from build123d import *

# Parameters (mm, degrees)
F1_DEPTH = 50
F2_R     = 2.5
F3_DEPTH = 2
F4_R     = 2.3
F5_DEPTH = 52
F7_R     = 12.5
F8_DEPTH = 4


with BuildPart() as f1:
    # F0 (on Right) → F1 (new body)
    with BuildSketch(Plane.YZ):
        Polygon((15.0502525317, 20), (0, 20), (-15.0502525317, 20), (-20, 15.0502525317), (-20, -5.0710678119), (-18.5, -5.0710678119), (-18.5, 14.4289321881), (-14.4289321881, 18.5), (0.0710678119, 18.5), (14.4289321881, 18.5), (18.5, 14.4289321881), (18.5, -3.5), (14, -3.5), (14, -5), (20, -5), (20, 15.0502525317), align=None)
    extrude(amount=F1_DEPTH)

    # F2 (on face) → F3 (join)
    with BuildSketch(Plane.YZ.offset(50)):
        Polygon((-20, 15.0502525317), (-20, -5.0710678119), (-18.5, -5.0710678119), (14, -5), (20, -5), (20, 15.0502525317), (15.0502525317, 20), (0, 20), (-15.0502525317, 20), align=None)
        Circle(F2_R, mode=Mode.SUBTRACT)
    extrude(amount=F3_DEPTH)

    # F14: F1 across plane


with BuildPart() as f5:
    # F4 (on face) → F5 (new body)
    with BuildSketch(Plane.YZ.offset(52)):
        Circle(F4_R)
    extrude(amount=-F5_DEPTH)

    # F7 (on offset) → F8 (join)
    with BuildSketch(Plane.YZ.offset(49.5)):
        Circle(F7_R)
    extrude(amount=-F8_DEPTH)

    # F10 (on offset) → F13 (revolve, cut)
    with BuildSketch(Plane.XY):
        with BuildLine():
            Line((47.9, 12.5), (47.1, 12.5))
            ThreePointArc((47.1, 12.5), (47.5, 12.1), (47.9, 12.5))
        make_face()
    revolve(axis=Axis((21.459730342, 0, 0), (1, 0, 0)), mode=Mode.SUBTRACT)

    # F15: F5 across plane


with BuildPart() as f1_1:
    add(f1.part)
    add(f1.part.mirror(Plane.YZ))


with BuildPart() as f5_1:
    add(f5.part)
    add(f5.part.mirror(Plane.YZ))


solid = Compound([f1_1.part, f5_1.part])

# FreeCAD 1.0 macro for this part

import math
import FreeCAD as App
import Part
import Sketcher
from FreeCAD import Vector
Q = App.Units.Quantity

doc = App.newDocument("Part")
body = doc.addObject("PartDesign::Body", "Body")

# Sketch on YZ plane
sketch1 = body.newObject("Sketcher::SketchObject", "Sketch")
sketch1.AttachmentSupport = (doc.getObject("YZ_Plane"), [""])
sketch1.MapMode = "FlatFace"
sketch1.addGeometry([
    Part.LineSegment(Vector(15.1, 20, 0), Vector(-15.1, 20, 0)),  # 0
    Part.LineSegment(Vector(-15.1, 20, 0), Vector(-20, 15.1, 0)),  # 1
    Part.LineSegment(Vector(-20, 15.1, 0), Vector(-20, -5.1, 0)),  # 2
    Part.LineSegment(Vector(-20, -5.1, 0), Vector(-18.5, -5.1, 0)),  # 3
    Part.LineSegment(Vector(-18.5, -5.1, 0), Vector(-18.5, 14.4, 0)),  # 4
    Part.LineSegment(Vector(-18.5, 14.4, 0), Vector(-14.4, 18.5, 0)),  # 5
    Part.LineSegment(Vector(-14.4, 18.5, 0), Vector(14.4, 18.5, 0)),  # 6
    Part.LineSegment(Vector(14.4, 18.5, 0), Vector(18.5, 14.4, 0)),  # 7
    Part.LineSegment(Vector(18.5, 14.4, 0), Vector(18.5, -3.5, 0)),  # 8
    Part.LineSegment(Vector(18.5, -3.5, 0), Vector(14, -3.5, 0)),  # 9
    Part.LineSegment(Vector(14, -3.5, 0), Vector(14, -5, 0)),  # 10
    Part.LineSegment(Vector(14, -5, 0), Vector(20, -5, 0)),  # 11
    Part.LineSegment(Vector(20, -5, 0), Vector(20, 15.1, 0)),  # 12
    Part.LineSegment(Vector(20, 15.1, 0), Vector(15.1, 20, 0)),  # 13
], False)
sketch1.addConstraint([
    Sketcher.Constraint("Coincident", 0, 2, 1, 1),
    Sketcher.Constraint("Coincident", 1, 2, 2, 1),
    Sketcher.Constraint("Coincident", 2, 2, 3, 1),
    Sketcher.Constraint("Coincident", 3, 2, 4, 1),
    Sketcher.Constraint("Coincident", 4, 2, 5, 1),
    Sketcher.Constraint("Coincident", 5, 2, 6, 1),
    Sketcher.Constraint("Coincident", 6, 2, 7, 1),
    Sketcher.Constraint("Coincident", 7, 2, 8, 1),
    Sketcher.Constraint("Coincident", 8, 2, 9, 1),
    Sketcher.Constraint("Coincident", 9, 2, 10, 1),
    Sketcher.Constraint("Coincident", 10, 2, 11, 1),
    Sketcher.Constraint("Coincident", 11, 2, 12, 1),
    Sketcher.Constraint("Coincident", 12, 2, 13, 1),
    Sketcher.Constraint("Coincident", 13, 2, 0, 1),
    Sketcher.Constraint("Horizontal", 0),
    Sketcher.Constraint("Vertical", 2),
    Sketcher.Constraint("Horizontal", 3),
    Sketcher.Constraint("Vertical", 4),
    Sketcher.Constraint("Horizontal", 6),
    Sketcher.Constraint("Vertical", 8),
    Sketcher.Constraint("Horizontal", 9),
    Sketcher.Constraint("Vertical", 10),
    Sketcher.Constraint("Horizontal", 11),
    Sketcher.Constraint("Vertical", 12),
    Sketcher.Constraint("Symmetric", 4, 2, 7, 2, -2),
    Sketcher.Constraint("Symmetric", 1, 2, 12, 2, -2),
    Sketcher.Constraint("Parallel", 1, 5),
    Sketcher.Constraint("Perpendicular", 5, 7),
    Sketcher.Constraint("Parallel", 7, 13),
    Sketcher.Constraint("Equal", 3, 10),
    Sketcher.Constraint("Equal", 5, 7),
    Sketcher.Constraint("DistanceX", 11, 1, 11, 2, Q("6 mm")),
    Sketcher.Constraint("Distance", 1, Q("7 mm")),
    Sketcher.Constraint("DistanceX", 3, 1, 3, 2, Q("1.5 mm")),
    Sketcher.Constraint("DistanceY", 4, 1, 4, 2, Q("19.5 mm")),
    Sketcher.Constraint("DistanceY", -1, 1, 0, 2, Q("20 mm")),
    Sketcher.Constraint("DistanceX", 1, 2, -1, 1, Q("20 mm")),
    Sketcher.Constraint("DistanceY", 10, 2, -1, 1, Q("5 mm")),
    Sketcher.Constraint("DistanceY", 8, 2, 6, 2, Q("22 mm")),
    Sketcher.Constraint("DistanceY", 2, 2, 2, 1, Q("20.12132 mm")),
])
pad1 = body.newObject("PartDesign::Pad", "Pad")
pad1.Profile = sketch1
pad1.Length = 50

# Sketch on YZ plane
sketch2 = body.newObject("Sketcher::SketchObject", "Sketch001")
sketch2.AttachmentSupport = (doc.getObject("YZ_Plane"), [""])
sketch2.MapMode = "FlatFace"
sketch2.AttachmentOffset = App.Placement(Vector(0, 0, 50), App.Rotation())
sketch2.addGeometry([
    Part.LineSegment(Vector(-20, 15.1, 0), Vector(-20, -5.1, 0)),  # 0
    Part.LineSegment(Vector(-20, -5.1, 0), Vector(-18.5, -5.1, 0)),  # 1
    Part.LineSegment(Vector(-18.5, -5.1, 0), Vector(14, -5, 0)),  # 2
    Part.LineSegment(Vector(14, -5, 0), Vector(20, -5, 0)),  # 3
    Part.LineSegment(Vector(20, -5, 0), Vector(20, 15.1, 0)),  # 4
    Part.LineSegment(Vector(20, 15.1, 0), Vector(15.1, 20, 0)),  # 5
    Part.LineSegment(Vector(15.1, 20, 0), Vector(-15.1, 20, 0)),  # 6
    Part.LineSegment(Vector(-15.1, 20, 0), Vector(-20, 15.1, 0)),  # 7
    Part.Circle(Vector(0, 0, 0), Vector(0, 0, 1), 2.5),  # 8
], False)
sketch2.addConstraint([
    Sketcher.Constraint("Coincident", 0, 2, 1, 1),
    Sketcher.Constraint("Coincident", 1, 2, 2, 1),
    Sketcher.Constraint("Coincident", 2, 2, 3, 1),
    Sketcher.Constraint("Coincident", 3, 2, 4, 1),
    Sketcher.Constraint("Coincident", 4, 2, 5, 1),
    Sketcher.Constraint("Coincident", 5, 2, 6, 1),
    Sketcher.Constraint("Coincident", 6, 2, 7, 1),
    Sketcher.Constraint("Coincident", 7, 2, 0, 1),
    Sketcher.Constraint("Vertical", 0),
    Sketcher.Constraint("Horizontal", 1),
    Sketcher.Constraint("Horizontal", 3),
    Sketcher.Constraint("Vertical", 4),
    Sketcher.Constraint("Horizontal", 6),
    Sketcher.Constraint("Coincident", 8, 3, -1, 1),
    Sketcher.Constraint("Symmetric", 4, 2, 7, 2, -2),
    Sketcher.Constraint("Perpendicular", 5, 7),
    Sketcher.Constraint("Equal", 5, 7),
    Sketcher.Constraint("Diameter", 8, Q("5 mm")),
    Sketcher.Constraint("DistanceX", 3, 1, 3, 2, Q("6 mm")),
    Sketcher.Constraint("Distance", 5, Q("7 mm")),
    Sketcher.Constraint("DistanceX", 1, 1, 1, 2, Q("1.5 mm")),
    Sketcher.Constraint("DistanceX", 0, 2, -1, 1, Q("20 mm")),
    Sketcher.Constraint("DistanceY", 2, 2, -1, 1, Q("5 mm")),
    Sketcher.Constraint("DistanceY", -1, 1, 5, 2, Q("20 mm")),
    Sketcher.Constraint("DistanceY", 0, 2, 0, 1, Q("20.12132 mm")),
])
pad2 = body.newObject("PartDesign::Pad", "Pad001")
pad2.Profile = sketch2
pad2.Length = 2
body2 = doc.addObject("PartDesign::Body", "Body001")

# Sketch on YZ plane
sketch3 = body2.newObject("Sketcher::SketchObject", "Sketch002")
sketch3.AttachmentSupport = (doc.getObject("YZ_Plane001"), [""])
sketch3.MapMode = "FlatFace"
sketch3.AttachmentOffset = App.Placement(Vector(0, 0, 52), App.Rotation())
sketch3.addGeometry(Part.Circle(Vector(0, 0, 0), Vector(0, 0, 1), 2.3), False)
sketch3.addConstraint([
    Sketcher.Constraint("Coincident", 0, 3, -1, 1),
    Sketcher.Constraint("Diameter", 0, Q("4.6 mm")),
])
pad3 = body2.newObject("PartDesign::Pad", "Pad002")
pad3.Profile = sketch3
pad3.Length = 52
pad3.Reversed = True

# Sketch on YZ plane
sketch4 = body2.newObject("Sketcher::SketchObject", "Sketch003")
sketch4.AttachmentSupport = (doc.getObject("YZ_Plane001"), [""])
sketch4.MapMode = "FlatFace"
sketch4.AttachmentOffset = App.Placement(Vector(0, 0, 49.5), App.Rotation())
sketch4.addGeometry(Part.Circle(Vector(0, 0, 0), Vector(0, 0, 1), 12), False)
sketch4.addConstraint([
    Sketcher.Constraint("Coincident", 0, 3, -1, 1),
    Sketcher.Constraint("Diameter", 0, Q("25 mm")),
])
pad4 = body2.newObject("PartDesign::Pad", "Pad003")
pad4.Profile = sketch4
pad4.Length = 4
pad4.Reversed = True

# Sketch on XY plane
sketch5 = body2.newObject("Sketcher::SketchObject", "Sketch004")
sketch5.AttachmentSupport = (doc.getObject("XY_Plane001"), [""])
sketch5.MapMode = "FlatFace"
sketch5.addGeometry([
    Part.LineSegment(Vector(47.9, 12.5, 0), Vector(47.1, 12.5, 0)),
    Part.ArcOfCircle(Part.Circle(Vector(47.5, 12.5, 0), Vector(0, 0, 1), 0.4), math.radians(180), math.radians(360)),
], False)
sketch5.addConstraint([
    Sketcher.Constraint("Coincident", 0, 1, 1, 2),
    Sketcher.Constraint("Coincident", 1, 1, 0, 2),
    Sketcher.Constraint("Horizontal", 0),
    Sketcher.Constraint("Horizontal", 1, 3, 0, 1),
    Sketcher.Constraint("Radius", 1, Q("0.4 mm")),
    Sketcher.Constraint("DistanceX", -1, 1, 1, 3, Q("47.5 mm")),
    Sketcher.Constraint("DistanceY", -1, 1, 1, 3, Q("12.5 mm")),
])
groove = body2.newObject("PartDesign::Groove", "Groove")
groove.Profile = sketch5
groove.ReferenceAxis = (sketch5, ["H_Axis"])
groove.Angle = 360
body3 = doc.addObject("PartDesign::Body", "Body002")
doc.recompute()

body3.BaseFeature = body
doc.recompute()

mirroring = doc.addObject("Part::Mirroring", "Mirroring")
mirroring.Source = body
mirroring.Base = Vector(0, 0, 0)
mirroring.Normal = Vector(1, 0, 0)
body4 = doc.addObject("PartDesign::Body", "Body003")
body4.BaseFeature = mirroring
boolean = body3.newObject("PartDesign::Boolean", "Boolean")
boolean.Type = "Fuse"
boolean.addObjects([body4])
doc.recompute()
body5 = doc.addObject("PartDesign::Body", "Body004")
doc.recompute()

body5.BaseFeature = body2
doc.recompute()

mirroring2 = doc.addObject("Part::Mirroring", "Mirroring001")
mirroring2.Source = body2
mirroring2.Base = Vector(0, 0, 0)
mirroring2.Normal = Vector(1, 0, 0)
body6 = doc.addObject("PartDesign::Body", "Body005")
body6.BaseFeature = mirroring2
boolean2 = body5.newObject("PartDesign::Boolean", "Boolean001")
boolean2.Type = "Fuse"
boolean2.addObjects([body6])
doc.recompute()
mirroring.Visibility = False
mirroring2.Visibility = False

doc.recompute()
